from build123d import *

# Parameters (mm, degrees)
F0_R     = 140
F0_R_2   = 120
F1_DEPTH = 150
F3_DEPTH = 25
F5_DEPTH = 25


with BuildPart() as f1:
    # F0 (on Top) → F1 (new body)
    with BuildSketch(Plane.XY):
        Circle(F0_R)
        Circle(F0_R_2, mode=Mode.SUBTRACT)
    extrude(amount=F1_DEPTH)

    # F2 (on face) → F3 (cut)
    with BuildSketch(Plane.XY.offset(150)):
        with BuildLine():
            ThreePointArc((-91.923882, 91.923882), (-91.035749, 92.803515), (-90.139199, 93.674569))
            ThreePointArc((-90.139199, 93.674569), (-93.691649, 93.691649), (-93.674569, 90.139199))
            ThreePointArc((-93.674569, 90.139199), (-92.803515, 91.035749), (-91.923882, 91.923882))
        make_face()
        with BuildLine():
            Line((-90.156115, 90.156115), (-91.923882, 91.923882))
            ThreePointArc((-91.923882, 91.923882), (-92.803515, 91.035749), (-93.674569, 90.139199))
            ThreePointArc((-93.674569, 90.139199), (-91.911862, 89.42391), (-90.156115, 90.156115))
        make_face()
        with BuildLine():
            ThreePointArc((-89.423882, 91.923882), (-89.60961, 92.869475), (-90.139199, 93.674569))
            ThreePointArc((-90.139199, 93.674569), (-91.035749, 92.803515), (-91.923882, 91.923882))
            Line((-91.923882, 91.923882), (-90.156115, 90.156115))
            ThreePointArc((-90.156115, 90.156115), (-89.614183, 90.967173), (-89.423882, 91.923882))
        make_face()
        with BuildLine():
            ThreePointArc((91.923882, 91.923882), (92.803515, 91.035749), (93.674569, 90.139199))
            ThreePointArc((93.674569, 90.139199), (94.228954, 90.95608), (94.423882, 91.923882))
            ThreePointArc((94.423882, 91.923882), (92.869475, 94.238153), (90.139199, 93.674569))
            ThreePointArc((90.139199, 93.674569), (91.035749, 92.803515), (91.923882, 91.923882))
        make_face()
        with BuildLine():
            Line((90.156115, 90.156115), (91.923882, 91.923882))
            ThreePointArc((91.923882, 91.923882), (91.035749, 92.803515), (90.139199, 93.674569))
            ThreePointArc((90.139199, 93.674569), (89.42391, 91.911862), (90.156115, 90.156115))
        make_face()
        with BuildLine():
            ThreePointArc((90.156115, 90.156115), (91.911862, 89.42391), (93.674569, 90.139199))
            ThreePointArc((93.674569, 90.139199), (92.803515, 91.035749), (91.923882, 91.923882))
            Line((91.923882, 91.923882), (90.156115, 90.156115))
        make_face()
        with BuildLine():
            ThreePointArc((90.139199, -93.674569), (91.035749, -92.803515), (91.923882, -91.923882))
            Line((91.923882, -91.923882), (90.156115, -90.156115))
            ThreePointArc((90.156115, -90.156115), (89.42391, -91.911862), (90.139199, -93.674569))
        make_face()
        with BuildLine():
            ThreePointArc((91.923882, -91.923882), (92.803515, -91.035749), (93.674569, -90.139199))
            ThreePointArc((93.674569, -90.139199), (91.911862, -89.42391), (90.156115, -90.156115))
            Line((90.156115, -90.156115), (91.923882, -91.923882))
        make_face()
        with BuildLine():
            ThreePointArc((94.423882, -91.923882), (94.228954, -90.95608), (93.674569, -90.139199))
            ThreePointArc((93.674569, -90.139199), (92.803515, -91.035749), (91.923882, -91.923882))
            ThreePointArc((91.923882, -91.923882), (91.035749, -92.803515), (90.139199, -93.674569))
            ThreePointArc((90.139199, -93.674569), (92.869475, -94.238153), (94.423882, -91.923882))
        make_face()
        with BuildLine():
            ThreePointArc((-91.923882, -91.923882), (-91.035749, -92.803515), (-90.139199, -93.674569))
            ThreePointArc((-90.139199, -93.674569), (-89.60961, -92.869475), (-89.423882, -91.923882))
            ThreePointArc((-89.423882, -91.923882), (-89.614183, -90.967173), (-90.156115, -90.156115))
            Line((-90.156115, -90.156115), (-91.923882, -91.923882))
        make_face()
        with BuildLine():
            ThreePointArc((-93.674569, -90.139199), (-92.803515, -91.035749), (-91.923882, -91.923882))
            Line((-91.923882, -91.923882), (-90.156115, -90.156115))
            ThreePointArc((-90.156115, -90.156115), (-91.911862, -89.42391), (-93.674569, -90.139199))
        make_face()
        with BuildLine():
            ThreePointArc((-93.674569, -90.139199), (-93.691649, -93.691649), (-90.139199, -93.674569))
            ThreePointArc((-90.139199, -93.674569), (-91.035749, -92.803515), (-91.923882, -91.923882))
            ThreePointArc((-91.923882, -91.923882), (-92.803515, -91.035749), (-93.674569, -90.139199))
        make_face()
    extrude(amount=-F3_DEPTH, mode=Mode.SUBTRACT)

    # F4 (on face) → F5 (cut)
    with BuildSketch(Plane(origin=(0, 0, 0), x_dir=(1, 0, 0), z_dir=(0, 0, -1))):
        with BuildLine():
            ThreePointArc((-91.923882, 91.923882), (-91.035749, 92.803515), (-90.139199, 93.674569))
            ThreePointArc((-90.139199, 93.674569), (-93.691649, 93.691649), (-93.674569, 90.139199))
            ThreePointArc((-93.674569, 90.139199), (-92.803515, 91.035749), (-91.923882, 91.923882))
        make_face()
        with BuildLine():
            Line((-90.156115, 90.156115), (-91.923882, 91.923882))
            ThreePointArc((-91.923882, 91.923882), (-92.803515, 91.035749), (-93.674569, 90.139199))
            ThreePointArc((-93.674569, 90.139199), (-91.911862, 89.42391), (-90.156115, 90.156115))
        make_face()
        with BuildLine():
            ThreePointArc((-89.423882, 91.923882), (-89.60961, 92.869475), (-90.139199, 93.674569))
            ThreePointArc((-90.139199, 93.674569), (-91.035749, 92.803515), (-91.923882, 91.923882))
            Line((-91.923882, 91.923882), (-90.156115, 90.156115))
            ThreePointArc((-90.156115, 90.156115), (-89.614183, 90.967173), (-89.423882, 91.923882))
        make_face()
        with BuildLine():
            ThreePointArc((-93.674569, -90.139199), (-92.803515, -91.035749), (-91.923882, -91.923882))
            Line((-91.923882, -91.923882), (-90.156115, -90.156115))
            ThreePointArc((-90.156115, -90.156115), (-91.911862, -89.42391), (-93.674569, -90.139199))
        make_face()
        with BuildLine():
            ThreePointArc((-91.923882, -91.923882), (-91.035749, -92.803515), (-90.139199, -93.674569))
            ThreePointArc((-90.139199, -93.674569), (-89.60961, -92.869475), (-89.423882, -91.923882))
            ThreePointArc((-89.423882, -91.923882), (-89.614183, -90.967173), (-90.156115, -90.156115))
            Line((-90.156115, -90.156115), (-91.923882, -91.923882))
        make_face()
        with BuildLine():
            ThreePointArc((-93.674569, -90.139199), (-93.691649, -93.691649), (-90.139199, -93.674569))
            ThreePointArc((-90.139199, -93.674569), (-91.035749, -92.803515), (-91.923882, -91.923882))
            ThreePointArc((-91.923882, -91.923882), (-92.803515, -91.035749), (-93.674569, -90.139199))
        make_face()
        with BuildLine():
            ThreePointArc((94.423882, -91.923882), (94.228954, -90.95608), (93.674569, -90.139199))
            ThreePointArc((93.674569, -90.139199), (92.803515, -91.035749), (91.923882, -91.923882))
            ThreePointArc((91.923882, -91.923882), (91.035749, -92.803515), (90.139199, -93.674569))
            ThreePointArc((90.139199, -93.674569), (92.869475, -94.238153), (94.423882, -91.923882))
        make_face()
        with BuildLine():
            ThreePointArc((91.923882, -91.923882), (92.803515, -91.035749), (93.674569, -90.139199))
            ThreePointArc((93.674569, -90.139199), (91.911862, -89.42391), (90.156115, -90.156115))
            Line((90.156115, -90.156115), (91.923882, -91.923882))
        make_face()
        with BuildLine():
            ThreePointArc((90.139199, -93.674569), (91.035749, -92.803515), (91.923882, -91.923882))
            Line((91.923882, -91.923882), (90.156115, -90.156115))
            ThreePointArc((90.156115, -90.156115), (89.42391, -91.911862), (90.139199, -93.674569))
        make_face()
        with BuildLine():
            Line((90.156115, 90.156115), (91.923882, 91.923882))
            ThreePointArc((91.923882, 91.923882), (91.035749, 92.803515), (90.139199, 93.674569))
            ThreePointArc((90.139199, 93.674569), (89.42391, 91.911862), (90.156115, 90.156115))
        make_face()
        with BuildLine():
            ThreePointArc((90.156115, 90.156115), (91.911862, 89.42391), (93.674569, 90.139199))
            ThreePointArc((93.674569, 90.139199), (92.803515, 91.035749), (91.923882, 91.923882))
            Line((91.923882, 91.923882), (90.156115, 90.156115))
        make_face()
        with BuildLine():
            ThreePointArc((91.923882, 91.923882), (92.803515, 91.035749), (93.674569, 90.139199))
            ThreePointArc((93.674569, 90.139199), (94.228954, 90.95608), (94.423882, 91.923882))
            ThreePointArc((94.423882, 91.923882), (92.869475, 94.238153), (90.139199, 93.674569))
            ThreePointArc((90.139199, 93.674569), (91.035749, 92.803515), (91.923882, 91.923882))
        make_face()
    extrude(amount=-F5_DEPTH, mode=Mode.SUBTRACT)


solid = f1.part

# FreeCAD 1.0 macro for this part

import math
import FreeCAD as App
import Part
import Sketcher
Q = App.Units.Quantity

doc = App.newDocument("Part")
body = doc.addObject("PartDesign::Body", "Body")

sketch1 = body.newObject("Sketcher::SketchObject", "Sketch")
sketch1.AttachmentSupport = (doc.getObject("XY_Plane"), [""])
sketch1.MapMode = "FlatFace"
sketch1.addGeometry(Part.Circle(App.Vector(0, 0, 0), App.Vector(0, 0, 1), 140), False)
sketch1.addGeometry(Part.Circle(App.Vector(0, 0, 0), App.Vector(0, 0, 1), 120), False)
sketch1.addConstraint(Sketcher.Constraint("Coincident", 0, 3, -1, 1))
sketch1.addConstraint(Sketcher.Constraint("Coincident", 1, 3, -1, 1))
sketch1.addConstraint(Sketcher.Constraint("Diameter", 0, Q("280 mm")))
sketch1.addConstraint(Sketcher.Constraint("Diameter", 1, Q("240 mm")))
pad1 = body.newObject("PartDesign::Pad", "Pad")
pad1.Profile = sketch1
pad1.Length = 150

sketch2 = body.newObject("Sketcher::SketchObject", "Sketch001")
sketch2.AttachmentSupport = (doc.getObject("XY_Plane"), [""])
sketch2.MapMode = "FlatFace"
sketch2.AttachmentOffset = App.Placement(App.Vector(0, 0, 150), App.Rotation())
sketch2.addGeometry(Part.ArcOfCircle(Part.Circle(App.Vector(-91.923882, 91.923882, 0), App.Vector(0, 0, 1), 2.5), math.radians(44.449054), math.radians(225.550946)), False)
sketch2.addGeometry(Part.ArcOfCircle(Part.Circle(App.Vector(-91.923882, 91.923878, 0), App.Vector(0, 0, 1), 2.499997), math.radians(-134.449124), math.radians(-44.999947)), False)
sketch2.addGeometry(Part.ArcOfCircle(Part.Circle(App.Vector(-91.923879, 91.92388, 0), App.Vector(0, 0, 1), 2.499997), math.radians(-45.000031), math.radians(0.000034)), False)
sketch2.addGeometry(Part.ArcOfCircle(Part.Circle(App.Vector(-91.923877, 91.923883, 0), App.Vector(0, 0, 1), 2.499995), math.radians(-0.000033), math.radians(44.449114)), False)
sketch2.addGeometry(Part.ArcOfCircle(Part.Circle(App.Vector(91.923878, 91.923884, 0), App.Vector(0, 0, 1), 2.500004), math.radians(-45.550911), math.radians(-0.000044)), False)
sketch2.addGeometry(Part.ArcOfCircle(Part.Circle(App.Vector(91.923882, 91.923881, 0), App.Vector(0, 0, 1), 2.5), math.radians(0.000021), math.radians(135.55092)), False)
sketch2.addGeometry(Part.ArcOfCircle(Part.Circle(App.Vector(91.923878, 91.923882, 0), App.Vector(0, 0, 1), 2.499997), math.radians(135.550876), math.radians(225.000053)), False)
sketch2.addGeometry(Part.ArcOfCircle(Part.Circle(App.Vector(91.923882, 91.923878, 0), App.Vector(0, 0, 1), 2.499997), math.radians(-135.000053), math.radians(-45.550876)), False)
sketch2.addGeometry(Part.ArcOfCircle(Part.Circle(App.Vector(91.923882, -91.923878, 0), App.Vector(0, 0, 1), 2.499997), math.radians(45.550876), math.radians(135.000053)), False)
sketch2.addGeometry(Part.ArcOfCircle(Part.Circle(App.Vector(91.923878, -91.923882, 0), App.Vector(0, 0, 1), 2.499997), math.radians(134.999947), math.radians(224.449124)), False)
sketch2.addGeometry(Part.ArcOfCircle(Part.Circle(App.Vector(91.923882, -91.923881, 0), App.Vector(0, 0, 1), 2.5), math.radians(-135.55092), math.radians(-0.000021)), False)
sketch2.addGeometry(Part.ArcOfCircle(Part.Circle(App.Vector(91.923878, -91.923884, 0), App.Vector(0, 0, 1), 2.500004), math.radians(0.000044), math.radians(45.550911)), False)
sketch2.addGeometry(Part.ArcOfCircle(Part.Circle(App.Vector(-91.923877, -91.923883, 0), App.Vector(0, 0, 1), 2.499995), math.radians(-44.449114), math.radians(0.000033)), False)
sketch2.addGeometry(Part.ArcOfCircle(Part.Circle(App.Vector(-91.923879, -91.92388, 0), App.Vector(0, 0, 1), 2.499997), math.radians(-0.000034), math.radians(45.000031)), False)
sketch2.addGeometry(Part.ArcOfCircle(Part.Circle(App.Vector(-91.923882, -91.923878, 0), App.Vector(0, 0, 1), 2.499997), math.radians(44.999947), math.radians(134.449124)), False)
sketch2.addGeometry(Part.ArcOfCircle(Part.Circle(App.Vector(-91.923882, -91.923882, 0), App.Vector(0, 0, 1), 2.5), math.radians(134.449054), math.radians(315.550946)), False)
sketch2.addConstraint(Sketcher.Constraint("Tangent", 0, 2, 1, 1))
sketch2.addConstraint(Sketcher.Constraint("Tangent", 1, 2, 2, 1))
sketch2.addConstraint(Sketcher.Constraint("Tangent", 2, 2, 3, 1))
sketch2.addConstraint(Sketcher.Constraint("Tangent", 3, 2, 0, 1))
sketch2.addConstraint(Sketcher.Constraint("Tangent", 4, 2, 5, 1))
sketch2.addConstraint(Sketcher.Constraint("Tangent", 5, 2, 6, 1))
sketch2.addConstraint(Sketcher.Constraint("Tangent", 6, 2, 7, 1))
sketch2.addConstraint(Sketcher.Constraint("Tangent", 7, 2, 4, 1))
sketch2.addConstraint(Sketcher.Constraint("Tangent", 8, 2, 9, 1))
sketch2.addConstraint(Sketcher.Constraint("Tangent", 9, 2, 10, 1))
sketch2.addConstraint(Sketcher.Constraint("Tangent", 10, 2, 11, 1))
sketch2.addConstraint(Sketcher.Constraint("Tangent", 11, 2, 8, 1))
sketch2.addConstraint(Sketcher.Constraint("Tangent", 12, 2, 13, 1))
sketch2.addConstraint(Sketcher.Constraint("Tangent", 13, 2, 14, 1))
sketch2.addConstraint(Sketcher.Constraint("Tangent", 14, 2, 15, 1))
sketch2.addConstraint(Sketcher.Constraint("Tangent", 15, 2, 12, 1))
sketch2.addConstraint(Sketcher.Constraint("Equal", 1, 2))
sketch2.addConstraint(Sketcher.Constraint("Equal", 0, 5))
sketch2.addConstraint(Sketcher.Constraint("Equal", 2, 6))
sketch2.addConstraint(Sketcher.Constraint("Equal", 7, 8))
sketch2.addConstraint(Sketcher.Constraint("Equal", 8, 9))
sketch2.addConstraint(Sketcher.Constraint("Equal", 3, 12))
sketch2.addConstraint(Sketcher.Constraint("Equal", 12, 13))
sketch2.addConstraint(Sketcher.Constraint("Symmetric", 0, 3, 8, 3, -1, 1))
sketch2.addConstraint(Sketcher.Constraint("Symmetric", 4, 3, 12, 3, -1, 1))
sketch2.addConstraint(Sketcher.Constraint("Symmetric", 0, 3, 4, 3, -2))
sketch2.addConstraint(Sketcher.Constraint("Horizontal", 6, 3, 2, 2))
sketch2.addConstraint(Sketcher.Constraint("Horizontal", 2, 2, 4, 2))
sketch2.addConstraint(Sketcher.Constraint("Horizontal", 3, 2, 5, 2))
sketch2.addConstraint(Sketcher.Constraint("Horizontal", 1, 2, 6, 2))
sketch2.addConstraint(Sketcher.Constraint("Horizontal", 0, 2, 7, 2))
sketch2.addConstraint(Sketcher.Constraint("Horizontal", 15, 3, 10, 2))
sketch2.addConstraint(Sketcher.Constraint("Horizontal", 10, 2, 12, 2))
sketch2.addConstraint(Sketcher.Constraint("Horizontal", 8, 2, 13, 2))
sketch2.addConstraint(Sketcher.Constraint("Horizontal", 11, 2, 14, 2))
sketch2.addConstraint(Sketcher.Constraint("Horizontal", 9, 2, 15, 2))
sketch2.addConstraint(Sketcher.Constraint("Vertical", 6, 2, 8, 2))
sketch2.addConstraint(Sketcher.Constraint("Vertical", 5, 2, 9, 2))
sketch2.addConstraint(Sketcher.Constraint("Vertical", 7, 2, 11, 2))
sketch2.addConstraint(Sketcher.Constraint("Radius", 0, Q("2.5 mm")))
sketch2.addConstraint(Sketcher.Constraint("DistanceY", -1, 1, 0, 2, Q("90.139199 mm")))
sketch2.addConstraint(Sketcher.Constraint("DistanceX", 3, 2, -1, 1, Q("90.139199 mm")))
sketch2.addConstraint(Sketcher.Constraint("DistanceX", 1, 3, -1, 1, Q("91.923882 mm")))
sketch2.addConstraint(Sketcher.Constraint("DistanceY", -1, 1, 1, 3, Q("91.923878 mm")))
sketch2.addConstraint(Sketcher.Constraint("DistanceY", 1, 2, 3, 3, Q("1.767768 mm")))
pocket1 = body.newObject("PartDesign::Pocket", "Pocket")
pocket1.Profile = sketch2
pocket1.Length = 25

sketch3 = body.newObject("Sketcher::SketchObject", "Sketch002")
sketch3.AttachmentSupport = (doc.getObject("XY_Plane"), [""])
sketch3.MapMode = "FlatFace"
sketch3.addGeometry(Part.ArcOfCircle(Part.Circle(App.Vector(-91.923882, -91.923882, 0), App.Vector(0, 0, 1), 2.5), math.radians(134.449054), math.radians(315.550946)), False)
sketch3.addGeometry(Part.ArcOfCircle(Part.Circle(App.Vector(-91.923882, -91.923878, 0), App.Vector(0, 0, 1), 2.499997), math.radians(44.999947), math.radians(134.449124)), False)
sketch3.addGeometry(Part.ArcOfCircle(Part.Circle(App.Vector(-91.923879, -91.92388, 0), App.Vector(0, 0, 1), 2.499997), math.radians(-0.000034), math.radians(45.000031)), False)
sketch3.addGeometry(Part.ArcOfCircle(Part.Circle(App.Vector(-91.923877, -91.923883, 0), App.Vector(0, 0, 1), 2.499995), math.radians(-44.449114), math.radians(0.000033)), False)
sketch3.addGeometry(Part.ArcOfCircle(Part.Circle(App.Vector(-91.923877, 91.923883, 0), App.Vector(0, 0, 1), 2.499995), math.radians(-0.000033), math.radians(44.449114)), False)
sketch3.addGeometry(Part.ArcOfCircle(Part.Circle(App.Vector(-91.923879, 91.92388, 0), App.Vector(0, 0, 1), 2.499997), math.radians(-45.000031), math.radians(0.000034)), False)
sketch3.addGeometry(Part.ArcOfCircle(Part.Circle(App.Vector(-91.923882, 91.923878, 0), App.Vector(0, 0, 1), 2.499997), math.radians(-134.449124), math.radians(-44.999947)), False)
sketch3.addGeometry(Part.ArcOfCircle(Part.Circle(App.Vector(-91.923882, 91.923882, 0), App.Vector(0, 0, 1), 2.5), math.radians(44.449054), math.radians(225.550946)), False)
sketch3.addGeometry(Part.ArcOfCircle(Part.Circle(App.Vector(91.923878, 91.923884, 0), App.Vector(0, 0, 1), 2.500004), math.radians(-45.550911), math.radians(-0.000044)), False)
sketch3.addGeometry(Part.ArcOfCircle(Part.Circle(App.Vector(91.923882, 91.923878, 0), App.Vector(0, 0, 1), 2.499997), math.radians(-135.000053), math.radians(-45.550876)), False)
sketch3.addGeometry(Part.ArcOfCircle(Part.Circle(App.Vector(91.923878, 91.923882, 0), App.Vector(0, 0, 1), 2.499997), math.radians(135.550876), math.radians(225.000053)), False)
sketch3.addGeometry(Part.ArcOfCircle(Part.Circle(App.Vector(91.923882, 91.923881, 0), App.Vector(0, 0, 1), 2.5), math.radians(0.000021), math.radians(135.55092)), False)
sketch3.addGeometry(Part.ArcOfCircle(Part.Circle(App.Vector(91.923878, -91.923882, 0), App.Vector(0, 0, 1), 2.499997), math.radians(134.999947), math.radians(224.449124)), False)
sketch3.addGeometry(Part.ArcOfCircle(Part.Circle(App.Vector(91.923882, -91.923878, 0), App.Vector(0, 0, 1), 2.499997), math.radians(45.550876), math.radians(135.000053)), False)
sketch3.addGeometry(Part.ArcOfCircle(Part.Circle(App.Vector(91.923878, -91.923884, 0), App.Vector(0, 0, 1), 2.500004), math.radians(0.000044), math.radians(45.550911)), False)
sketch3.addGeometry(Part.ArcOfCircle(Part.Circle(App.Vector(91.923882, -91.923881, 0), App.Vector(0, 0, 1), 2.5), math.radians(-135.55092), math.radians(-0.000021)), False)
sketch3.addConstraint(Sketcher.Constraint("Tangent", 0, 1, 1, 2))
sketch3.addConstraint(Sketcher.Constraint("Tangent", 1, 1, 2, 2))
sketch3.addConstraint(Sketcher.Constraint("Tangent", 2, 1, 3, 2))
sketch3.addConstraint(Sketcher.Constraint("Tangent", 3, 1, 0, 2))
sketch3.addConstraint(Sketcher.Constraint("Tangent", 4, 1, 5, 2))
sketch3.addConstraint(Sketcher.Constraint("Tangent", 5, 1, 6, 2))
sketch3.addConstraint(Sketcher.Constraint("Tangent", 6, 1, 7, 2))
sketch3.addConstraint(Sketcher.Constraint("Tangent", 7, 1, 4, 2))
sketch3.addConstraint(Sketcher.Constraint("Tangent", 8, 1, 9, 2))
sketch3.addConstraint(Sketcher.Constraint("Tangent", 9, 1, 10, 2))
sketch3.addConstraint(Sketcher.Constraint("Tangent", 10, 1, 11, 2))
sketch3.addConstraint(Sketcher.Constraint("Tangent", 11, 1, 8, 2))
sketch3.addConstraint(Sketcher.Constraint("Tangent", 12, 1, 13, 2))
sketch3.addConstraint(Sketcher.Constraint("Tangent", 13, 1, 14, 2))
sketch3.addConstraint(Sketcher.Constraint("Tangent", 14, 1, 15, 2))
sketch3.addConstraint(Sketcher.Constraint("Tangent", 15, 1, 12, 2))
sketch3.addConstraint(Sketcher.Constraint("Equal", 1, 2))
sketch3.addConstraint(Sketcher.Constraint("Equal", 3, 4))
sketch3.addConstraint(Sketcher.Constraint("Equal", 4, 5))
sketch3.addConstraint(Sketcher.Constraint("Equal", 6, 9))
sketch3.addConstraint(Sketcher.Constraint("Equal", 9, 10))
sketch3.addConstraint(Sketcher.Constraint("Equal", 10, 12))
sketch3.addConstraint(Sketcher.Constraint("Equal", 12, 13))
sketch3.addConstraint(Sketcher.Constraint("Symmetric", 0, 3, 8, 3, -1, 1))
sketch3.addConstraint(Sketcher.Constraint("Symmetric", 4, 3, 12, 3, -1, 1))
sketch3.addConstraint(Sketcher.Constraint("Symmetric", 4, 3, 8, 3, -2))
sketch3.addConstraint(Sketcher.Constraint("Horizontal", 15, 3, 2, 1))
sketch3.addConstraint(Sketcher.Constraint("Horizontal", 11, 3, 4, 1))
sketch3.addConstraint(Sketcher.Constraint("Horizontal", 6, 1, 8, 1))
sketch3.addConstraint(Sketcher.Constraint("Horizontal", 5, 1, 9, 1))
sketch3.addConstraint(Sketcher.Constraint("Horizontal", 7, 1, 10, 1))
sketch3.addConstraint(Sketcher.Constraint("Horizontal", 4, 1, 11, 1))
sketch3.addConstraint(Sketcher.Constraint("Horizontal", 1, 1, 12, 1))
sketch3.addConstraint(Sketcher.Constraint("Horizontal", 0, 1, 13, 1))
sketch3.addConstraint(Sketcher.Constraint("Horizontal", 2, 1, 14, 1))
sketch3.addConstraint(Sketcher.Constraint("Horizontal", 3, 1, 15, 1))
sketch3.addConstraint(Sketcher.Constraint("Vertical", 1, 1, 5, 1))
sketch3.addConstraint(Sketcher.Constraint("Vertical", 0, 1, 6, 1))
sketch3.addConstraint(Sketcher.Constraint("Vertical", 3, 1, 7, 1))
sketch3.addConstraint(Sketcher.Constraint("Radius", 0, Q("2.5 mm")))
sketch3.addConstraint(Sketcher.Constraint("DistanceY", 0, 1, -1, 1, Q("90.139199 mm")))
sketch3.addConstraint(Sketcher.Constraint("DistanceX", 3, 1, -1, 1, Q("90.139199 mm")))
sketch3.addConstraint(Sketcher.Constraint("DistanceX", 1, 3, -1, 1, Q("91.923882 mm")))
sketch3.addConstraint(Sketcher.Constraint("DistanceY", 1, 3, -1, 1, Q("91.923878 mm")))
sketch3.addConstraint(Sketcher.Constraint("DistanceY", 3, 3, 1, 1, Q("1.767768 mm")))
pocket2 = body.newObject("PartDesign::Pocket", "Pocket001")
pocket2.Profile = sketch3
pocket2.Length = 25
pocket2.Reversed = True

doc.recompute()
